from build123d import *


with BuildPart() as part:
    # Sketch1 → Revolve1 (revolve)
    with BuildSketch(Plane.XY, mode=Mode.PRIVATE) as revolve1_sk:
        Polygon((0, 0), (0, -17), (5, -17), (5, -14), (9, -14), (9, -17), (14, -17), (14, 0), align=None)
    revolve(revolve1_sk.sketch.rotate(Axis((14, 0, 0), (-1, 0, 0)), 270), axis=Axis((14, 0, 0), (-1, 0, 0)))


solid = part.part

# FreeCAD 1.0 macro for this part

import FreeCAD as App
import Part
import Sketcher

V = App.Vector

doc = App.newDocument("Part")
body = doc.addObject("PartDesign::Body", "Body")

sketch1 = body.newObject("Sketcher::SketchObject", "Sketch")
sketch1.AttachmentSupport = (doc.getObject("XY_Plane"), [""])
sketch1.MapMode = "FlatFace"
sketch1.addGeometry([
    Part.LineSegment(V(0, 0, 0), V(0, -17, 0)),
    Part.LineSegment(V(0, -17, 0), V(5, -17, 0)),
    Part.LineSegment(V(5, -17, 0), V(5, -14, 0)),
    Part.LineSegment(V(5, -14, 0), V(9, -14, 0)),
    Part.LineSegment(V(9, -14, 0), V(9, -17, 0)),
    Part.LineSegment(V(9, -17, 0), V(14, -17, 0)),
    Part.LineSegment(V(14, -17, 0), V(14, 0, 0)),
    Part.LineSegment(V(14, 0, 0), V(0, 0, 0)),
], False)
sketch1.addConstraint([
    Sketcher.Constraint("Coincident", 0, 2, 1, 1),
    Sketcher.Constraint("Coincident", 1, 2, 2, 1),
    Sketcher.Constraint("Coincident", 2, 2, 3, 1),
    Sketcher.Constraint("Coincident", 3, 2, 4, 1),
    Sketcher.Constraint("Coincident", 4, 2, 5, 1),
    Sketcher.Constraint("Coincident", 5, 2, 6, 1),
    Sketcher.Constraint("Coincident", 6, 2, 7, 1),
    Sketcher.Constraint("Coincident", 7, 2, 0, 1),
    Sketcher.Constraint("Vertical", 0),
    Sketcher.Constraint("Horizontal", 1),
    Sketcher.Constraint("Vertical", 2),
    Sketcher.Constraint("Horizontal", 3),
    Sketcher.Constraint("Vertical", 4),
    Sketcher.Constraint("Horizontal", 5),
    Sketcher.Constraint("Vertical", 6),
    Sketcher.Constraint("Horizontal", 7),
    Sketcher.Constraint("Coincident", 7, 2, -1, 1),
    Sketcher.Constraint("Horizontal", 1, 2, 4, 2),
    Sketcher.Constraint("Equal", 1, 5),
    Sketcher.Constraint("DistanceX", 1, 1, 1, 2, 5.0),
    Sketcher.Constraint("DistanceX", 3, 1, 3, 2, 4.0),
    Sketcher.Constraint("DistanceY", 0, 2, 0, 1, 17.0),
    Sketcher.Constraint("DistanceY", 2, 1, 2, 2, 3.0),
])
revolution = body.newObject("PartDesign::Revolution", "Revolution")
revolution.Profile = sketch1
revolution.ReferenceAxis = (sketch1, ["H_Axis"])
revolution.Angle = 360

doc.recompute()
